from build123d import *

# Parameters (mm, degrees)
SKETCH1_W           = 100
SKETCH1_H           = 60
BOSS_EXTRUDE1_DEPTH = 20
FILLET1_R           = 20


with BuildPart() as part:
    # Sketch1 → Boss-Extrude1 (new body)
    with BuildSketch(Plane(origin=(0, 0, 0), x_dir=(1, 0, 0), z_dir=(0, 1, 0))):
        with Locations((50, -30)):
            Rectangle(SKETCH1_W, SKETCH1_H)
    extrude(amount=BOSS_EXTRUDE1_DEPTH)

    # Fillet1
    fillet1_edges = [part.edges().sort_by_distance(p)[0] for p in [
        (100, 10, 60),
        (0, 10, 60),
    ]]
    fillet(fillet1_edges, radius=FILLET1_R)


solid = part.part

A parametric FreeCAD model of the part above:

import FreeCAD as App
import Part
import Sketcher


def edges_at(feature, points):
    """Names of the edges that pass closest to the given points."""
    edges = feature.Shape.Edges
    near = lambda p: min(range(len(edges)), key=lambda i: edges[i].distToShape(Part.Vertex(*p))[0])
    return sorted({f"Edge{near(p) + 1}" for p in points})


def add_polygon(sketch, points):
    """Adds a closed chain of lines whose ends are joined by coincident constraints."""
    first, n = sketch.GeometryCount, len(points)
    for a, b in zip(points, points[1:] + points[:1]):
        sketch.addGeometry(Part.LineSegment(App.Vector(*a, 0), App.Vector(*b, 0)), False)
    for i in range(n):
        sketch.addConstraint(Sketcher.Constraint("Coincident", first + i, 2, first + (i + 1) % n, 1))

doc = App.newDocument("Part")
body = doc.addObject("PartDesign::Body", "Body")

sketch1 = body.newObject("Sketcher::SketchObject", "Sketch")
sketch1.AttachmentSupport = (doc.getObject("XZ_Plane"), [""])
sketch1.MapMode = "FlatFace"
add_polygon(sketch1, [(0, 0), (0, 60), (100, 60), (100, 0)])
sketch1.addConstraint(Sketcher.Constraint("Vertical", 0))
sketch1.addConstraint(Sketcher.Constraint("Horizontal", 1))
sketch1.addConstraint(Sketcher.Constraint("Vertical", 2))
sketch1.addConstraint(Sketcher.Constraint("Horizontal", 3))
sketch1.addConstraint(Sketcher.Constraint("Coincident", 3, 2, -1, 1))
sketch1.addConstraint(Sketcher.Constraint("DistanceX", 1, 1, 1, 2, 100.0))
sketch1.addConstraint(Sketcher.Constraint("DistanceY", 0, 1, 0, 2, 60.0))
pad1 = body.newObject("PartDesign::Pad", "Pad")
pad1.Profile = sketch1
pad1.Length = 20
pad1.Reversed = True
doc.recompute()

fillet = body.newObject("PartDesign::Fillet", "Fillet")
fillet.Base = (pad1, edges_at(pad1, [(100, 10, 60), (0, 10, 60)]))
fillet.Radius = 20

doc.recompute()
